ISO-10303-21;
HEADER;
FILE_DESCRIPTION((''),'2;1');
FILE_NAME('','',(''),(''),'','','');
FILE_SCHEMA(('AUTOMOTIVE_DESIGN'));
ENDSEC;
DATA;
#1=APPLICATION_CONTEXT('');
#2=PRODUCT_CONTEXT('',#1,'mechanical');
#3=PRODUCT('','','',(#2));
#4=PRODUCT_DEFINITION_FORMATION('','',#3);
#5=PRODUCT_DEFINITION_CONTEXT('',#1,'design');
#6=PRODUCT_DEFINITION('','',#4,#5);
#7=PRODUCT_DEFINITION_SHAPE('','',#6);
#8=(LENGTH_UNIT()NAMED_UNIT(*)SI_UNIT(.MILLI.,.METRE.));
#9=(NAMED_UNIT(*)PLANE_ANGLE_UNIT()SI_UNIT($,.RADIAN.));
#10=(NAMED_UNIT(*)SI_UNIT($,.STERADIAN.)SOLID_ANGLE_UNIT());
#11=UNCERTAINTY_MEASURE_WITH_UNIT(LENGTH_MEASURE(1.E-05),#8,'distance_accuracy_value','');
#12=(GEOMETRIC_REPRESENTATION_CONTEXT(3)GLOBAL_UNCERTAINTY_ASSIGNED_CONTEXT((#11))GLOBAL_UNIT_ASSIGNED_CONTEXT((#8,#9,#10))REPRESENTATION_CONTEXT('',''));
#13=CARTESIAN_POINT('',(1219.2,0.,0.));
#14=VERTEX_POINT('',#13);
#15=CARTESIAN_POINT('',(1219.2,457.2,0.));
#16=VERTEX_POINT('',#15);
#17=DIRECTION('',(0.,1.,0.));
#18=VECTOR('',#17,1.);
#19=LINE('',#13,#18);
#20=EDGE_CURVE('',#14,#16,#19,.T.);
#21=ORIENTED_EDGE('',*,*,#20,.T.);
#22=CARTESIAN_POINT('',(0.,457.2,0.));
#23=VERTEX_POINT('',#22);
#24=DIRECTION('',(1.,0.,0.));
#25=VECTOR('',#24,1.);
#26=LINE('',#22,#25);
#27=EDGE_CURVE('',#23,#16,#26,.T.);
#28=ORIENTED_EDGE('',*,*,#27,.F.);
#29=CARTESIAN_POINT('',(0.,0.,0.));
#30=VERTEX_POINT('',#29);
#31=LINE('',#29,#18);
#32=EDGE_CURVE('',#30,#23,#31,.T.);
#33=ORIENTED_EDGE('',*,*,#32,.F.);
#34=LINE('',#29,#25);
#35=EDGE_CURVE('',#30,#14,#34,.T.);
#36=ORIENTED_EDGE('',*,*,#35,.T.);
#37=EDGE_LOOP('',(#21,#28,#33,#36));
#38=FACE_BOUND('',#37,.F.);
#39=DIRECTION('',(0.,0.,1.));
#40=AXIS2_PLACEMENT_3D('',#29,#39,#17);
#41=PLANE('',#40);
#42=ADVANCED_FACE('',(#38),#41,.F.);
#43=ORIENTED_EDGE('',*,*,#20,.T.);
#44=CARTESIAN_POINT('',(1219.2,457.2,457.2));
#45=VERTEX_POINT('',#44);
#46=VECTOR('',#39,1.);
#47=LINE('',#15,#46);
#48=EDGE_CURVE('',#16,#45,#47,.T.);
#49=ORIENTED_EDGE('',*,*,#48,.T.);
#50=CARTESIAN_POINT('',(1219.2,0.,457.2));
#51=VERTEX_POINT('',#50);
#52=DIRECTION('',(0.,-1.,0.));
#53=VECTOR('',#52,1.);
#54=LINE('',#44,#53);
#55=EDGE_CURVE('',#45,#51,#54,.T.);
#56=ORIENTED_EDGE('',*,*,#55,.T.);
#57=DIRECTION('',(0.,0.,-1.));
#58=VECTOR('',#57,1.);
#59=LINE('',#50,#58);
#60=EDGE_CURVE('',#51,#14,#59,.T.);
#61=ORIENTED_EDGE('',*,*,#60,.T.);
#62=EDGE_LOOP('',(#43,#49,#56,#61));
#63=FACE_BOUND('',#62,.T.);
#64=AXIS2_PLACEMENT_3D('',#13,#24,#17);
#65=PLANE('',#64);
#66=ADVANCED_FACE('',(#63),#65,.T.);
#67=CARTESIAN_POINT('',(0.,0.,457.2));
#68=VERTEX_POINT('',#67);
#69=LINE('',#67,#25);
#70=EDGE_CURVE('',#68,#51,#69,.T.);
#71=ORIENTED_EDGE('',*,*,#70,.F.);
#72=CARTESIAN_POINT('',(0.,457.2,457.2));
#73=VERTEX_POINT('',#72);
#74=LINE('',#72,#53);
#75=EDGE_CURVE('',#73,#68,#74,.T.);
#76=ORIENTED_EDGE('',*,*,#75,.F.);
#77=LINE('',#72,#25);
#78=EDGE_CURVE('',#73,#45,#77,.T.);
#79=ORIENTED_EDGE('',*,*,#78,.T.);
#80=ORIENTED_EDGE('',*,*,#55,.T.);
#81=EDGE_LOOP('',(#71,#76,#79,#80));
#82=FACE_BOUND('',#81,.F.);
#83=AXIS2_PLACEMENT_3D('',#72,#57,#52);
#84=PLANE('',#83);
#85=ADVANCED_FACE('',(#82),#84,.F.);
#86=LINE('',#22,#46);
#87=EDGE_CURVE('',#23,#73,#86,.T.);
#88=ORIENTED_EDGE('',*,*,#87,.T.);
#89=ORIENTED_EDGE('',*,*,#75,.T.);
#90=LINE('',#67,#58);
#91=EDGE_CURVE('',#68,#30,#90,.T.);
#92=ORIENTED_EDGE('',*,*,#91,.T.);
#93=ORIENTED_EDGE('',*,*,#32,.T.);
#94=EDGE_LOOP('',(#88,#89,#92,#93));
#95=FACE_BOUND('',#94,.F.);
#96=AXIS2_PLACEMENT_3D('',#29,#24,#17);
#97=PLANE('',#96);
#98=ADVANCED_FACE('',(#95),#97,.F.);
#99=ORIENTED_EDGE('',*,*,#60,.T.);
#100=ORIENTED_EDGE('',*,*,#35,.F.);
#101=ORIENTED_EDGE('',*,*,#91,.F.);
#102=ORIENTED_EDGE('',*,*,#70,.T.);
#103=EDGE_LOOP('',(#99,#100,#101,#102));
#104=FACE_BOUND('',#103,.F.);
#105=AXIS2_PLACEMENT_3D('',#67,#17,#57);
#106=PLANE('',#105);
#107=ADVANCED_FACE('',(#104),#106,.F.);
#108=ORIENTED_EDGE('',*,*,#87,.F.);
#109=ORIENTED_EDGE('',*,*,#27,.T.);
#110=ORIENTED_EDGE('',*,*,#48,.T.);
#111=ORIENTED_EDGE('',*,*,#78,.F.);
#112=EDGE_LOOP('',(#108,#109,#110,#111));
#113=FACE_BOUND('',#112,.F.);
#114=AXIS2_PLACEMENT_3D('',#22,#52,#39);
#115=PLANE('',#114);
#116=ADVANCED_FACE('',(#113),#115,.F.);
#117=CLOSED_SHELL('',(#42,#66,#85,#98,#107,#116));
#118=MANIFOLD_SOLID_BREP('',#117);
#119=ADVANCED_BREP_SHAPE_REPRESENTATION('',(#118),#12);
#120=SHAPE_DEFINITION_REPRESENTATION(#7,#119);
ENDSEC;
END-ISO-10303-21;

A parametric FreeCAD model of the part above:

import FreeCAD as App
import Part
import Sketcher

V = App.Vector
Q = App.Units.Quantity

doc = App.newDocument("Part")
body = doc.addObject("PartDesign::Body", "Body")

# Sketch on YZ plane
sketch1 = body.newObject("Sketcher::SketchObject", "Sketch")
sketch1.AttachmentSupport = (doc.getObject("YZ_Plane"), [""])
sketch1.MapMode = "FlatFace"
sketch1.addGeometry([
    Part.LineSegment(V(0, 457, 0), V(0, 0, 0)),
    Part.LineSegment(V(0, 0, 0), V(457, 0, 0)),
    Part.LineSegment(V(457, 0, 0), V(457, 457, 0)),
    Part.LineSegment(V(457, 457, 0), V(0, 457, 0)),
], False)
sketch1.addConstraint([
    Sketcher.Constraint("Coincident", 0, 2, 1, 1),
    Sketcher.Constraint("Coincident", 1, 2, 2, 1),
    Sketcher.Constraint("Coincident", 2, 2, 3, 1),
    Sketcher.Constraint("Coincident", 3, 2, 0, 1),
    Sketcher.Constraint("Vertical", 0),
    Sketcher.Constraint("Horizontal", 1),
    Sketcher.Constraint("Vertical", 2),
    Sketcher.Constraint("Horizontal", 3),
    Sketcher.Constraint("Coincident", 0, 2, -1, 1),
    Sketcher.Constraint("Equal", 3, 0),
    Sketcher.Constraint("DistanceX", 1, 1, 1, 2, Q("18 in")),
])
pad1 = body.newObject("PartDesign::Pad", "Pad")
pad1.Profile = sketch1
pad1.Length = Q("48 in")

doc.recompute()
